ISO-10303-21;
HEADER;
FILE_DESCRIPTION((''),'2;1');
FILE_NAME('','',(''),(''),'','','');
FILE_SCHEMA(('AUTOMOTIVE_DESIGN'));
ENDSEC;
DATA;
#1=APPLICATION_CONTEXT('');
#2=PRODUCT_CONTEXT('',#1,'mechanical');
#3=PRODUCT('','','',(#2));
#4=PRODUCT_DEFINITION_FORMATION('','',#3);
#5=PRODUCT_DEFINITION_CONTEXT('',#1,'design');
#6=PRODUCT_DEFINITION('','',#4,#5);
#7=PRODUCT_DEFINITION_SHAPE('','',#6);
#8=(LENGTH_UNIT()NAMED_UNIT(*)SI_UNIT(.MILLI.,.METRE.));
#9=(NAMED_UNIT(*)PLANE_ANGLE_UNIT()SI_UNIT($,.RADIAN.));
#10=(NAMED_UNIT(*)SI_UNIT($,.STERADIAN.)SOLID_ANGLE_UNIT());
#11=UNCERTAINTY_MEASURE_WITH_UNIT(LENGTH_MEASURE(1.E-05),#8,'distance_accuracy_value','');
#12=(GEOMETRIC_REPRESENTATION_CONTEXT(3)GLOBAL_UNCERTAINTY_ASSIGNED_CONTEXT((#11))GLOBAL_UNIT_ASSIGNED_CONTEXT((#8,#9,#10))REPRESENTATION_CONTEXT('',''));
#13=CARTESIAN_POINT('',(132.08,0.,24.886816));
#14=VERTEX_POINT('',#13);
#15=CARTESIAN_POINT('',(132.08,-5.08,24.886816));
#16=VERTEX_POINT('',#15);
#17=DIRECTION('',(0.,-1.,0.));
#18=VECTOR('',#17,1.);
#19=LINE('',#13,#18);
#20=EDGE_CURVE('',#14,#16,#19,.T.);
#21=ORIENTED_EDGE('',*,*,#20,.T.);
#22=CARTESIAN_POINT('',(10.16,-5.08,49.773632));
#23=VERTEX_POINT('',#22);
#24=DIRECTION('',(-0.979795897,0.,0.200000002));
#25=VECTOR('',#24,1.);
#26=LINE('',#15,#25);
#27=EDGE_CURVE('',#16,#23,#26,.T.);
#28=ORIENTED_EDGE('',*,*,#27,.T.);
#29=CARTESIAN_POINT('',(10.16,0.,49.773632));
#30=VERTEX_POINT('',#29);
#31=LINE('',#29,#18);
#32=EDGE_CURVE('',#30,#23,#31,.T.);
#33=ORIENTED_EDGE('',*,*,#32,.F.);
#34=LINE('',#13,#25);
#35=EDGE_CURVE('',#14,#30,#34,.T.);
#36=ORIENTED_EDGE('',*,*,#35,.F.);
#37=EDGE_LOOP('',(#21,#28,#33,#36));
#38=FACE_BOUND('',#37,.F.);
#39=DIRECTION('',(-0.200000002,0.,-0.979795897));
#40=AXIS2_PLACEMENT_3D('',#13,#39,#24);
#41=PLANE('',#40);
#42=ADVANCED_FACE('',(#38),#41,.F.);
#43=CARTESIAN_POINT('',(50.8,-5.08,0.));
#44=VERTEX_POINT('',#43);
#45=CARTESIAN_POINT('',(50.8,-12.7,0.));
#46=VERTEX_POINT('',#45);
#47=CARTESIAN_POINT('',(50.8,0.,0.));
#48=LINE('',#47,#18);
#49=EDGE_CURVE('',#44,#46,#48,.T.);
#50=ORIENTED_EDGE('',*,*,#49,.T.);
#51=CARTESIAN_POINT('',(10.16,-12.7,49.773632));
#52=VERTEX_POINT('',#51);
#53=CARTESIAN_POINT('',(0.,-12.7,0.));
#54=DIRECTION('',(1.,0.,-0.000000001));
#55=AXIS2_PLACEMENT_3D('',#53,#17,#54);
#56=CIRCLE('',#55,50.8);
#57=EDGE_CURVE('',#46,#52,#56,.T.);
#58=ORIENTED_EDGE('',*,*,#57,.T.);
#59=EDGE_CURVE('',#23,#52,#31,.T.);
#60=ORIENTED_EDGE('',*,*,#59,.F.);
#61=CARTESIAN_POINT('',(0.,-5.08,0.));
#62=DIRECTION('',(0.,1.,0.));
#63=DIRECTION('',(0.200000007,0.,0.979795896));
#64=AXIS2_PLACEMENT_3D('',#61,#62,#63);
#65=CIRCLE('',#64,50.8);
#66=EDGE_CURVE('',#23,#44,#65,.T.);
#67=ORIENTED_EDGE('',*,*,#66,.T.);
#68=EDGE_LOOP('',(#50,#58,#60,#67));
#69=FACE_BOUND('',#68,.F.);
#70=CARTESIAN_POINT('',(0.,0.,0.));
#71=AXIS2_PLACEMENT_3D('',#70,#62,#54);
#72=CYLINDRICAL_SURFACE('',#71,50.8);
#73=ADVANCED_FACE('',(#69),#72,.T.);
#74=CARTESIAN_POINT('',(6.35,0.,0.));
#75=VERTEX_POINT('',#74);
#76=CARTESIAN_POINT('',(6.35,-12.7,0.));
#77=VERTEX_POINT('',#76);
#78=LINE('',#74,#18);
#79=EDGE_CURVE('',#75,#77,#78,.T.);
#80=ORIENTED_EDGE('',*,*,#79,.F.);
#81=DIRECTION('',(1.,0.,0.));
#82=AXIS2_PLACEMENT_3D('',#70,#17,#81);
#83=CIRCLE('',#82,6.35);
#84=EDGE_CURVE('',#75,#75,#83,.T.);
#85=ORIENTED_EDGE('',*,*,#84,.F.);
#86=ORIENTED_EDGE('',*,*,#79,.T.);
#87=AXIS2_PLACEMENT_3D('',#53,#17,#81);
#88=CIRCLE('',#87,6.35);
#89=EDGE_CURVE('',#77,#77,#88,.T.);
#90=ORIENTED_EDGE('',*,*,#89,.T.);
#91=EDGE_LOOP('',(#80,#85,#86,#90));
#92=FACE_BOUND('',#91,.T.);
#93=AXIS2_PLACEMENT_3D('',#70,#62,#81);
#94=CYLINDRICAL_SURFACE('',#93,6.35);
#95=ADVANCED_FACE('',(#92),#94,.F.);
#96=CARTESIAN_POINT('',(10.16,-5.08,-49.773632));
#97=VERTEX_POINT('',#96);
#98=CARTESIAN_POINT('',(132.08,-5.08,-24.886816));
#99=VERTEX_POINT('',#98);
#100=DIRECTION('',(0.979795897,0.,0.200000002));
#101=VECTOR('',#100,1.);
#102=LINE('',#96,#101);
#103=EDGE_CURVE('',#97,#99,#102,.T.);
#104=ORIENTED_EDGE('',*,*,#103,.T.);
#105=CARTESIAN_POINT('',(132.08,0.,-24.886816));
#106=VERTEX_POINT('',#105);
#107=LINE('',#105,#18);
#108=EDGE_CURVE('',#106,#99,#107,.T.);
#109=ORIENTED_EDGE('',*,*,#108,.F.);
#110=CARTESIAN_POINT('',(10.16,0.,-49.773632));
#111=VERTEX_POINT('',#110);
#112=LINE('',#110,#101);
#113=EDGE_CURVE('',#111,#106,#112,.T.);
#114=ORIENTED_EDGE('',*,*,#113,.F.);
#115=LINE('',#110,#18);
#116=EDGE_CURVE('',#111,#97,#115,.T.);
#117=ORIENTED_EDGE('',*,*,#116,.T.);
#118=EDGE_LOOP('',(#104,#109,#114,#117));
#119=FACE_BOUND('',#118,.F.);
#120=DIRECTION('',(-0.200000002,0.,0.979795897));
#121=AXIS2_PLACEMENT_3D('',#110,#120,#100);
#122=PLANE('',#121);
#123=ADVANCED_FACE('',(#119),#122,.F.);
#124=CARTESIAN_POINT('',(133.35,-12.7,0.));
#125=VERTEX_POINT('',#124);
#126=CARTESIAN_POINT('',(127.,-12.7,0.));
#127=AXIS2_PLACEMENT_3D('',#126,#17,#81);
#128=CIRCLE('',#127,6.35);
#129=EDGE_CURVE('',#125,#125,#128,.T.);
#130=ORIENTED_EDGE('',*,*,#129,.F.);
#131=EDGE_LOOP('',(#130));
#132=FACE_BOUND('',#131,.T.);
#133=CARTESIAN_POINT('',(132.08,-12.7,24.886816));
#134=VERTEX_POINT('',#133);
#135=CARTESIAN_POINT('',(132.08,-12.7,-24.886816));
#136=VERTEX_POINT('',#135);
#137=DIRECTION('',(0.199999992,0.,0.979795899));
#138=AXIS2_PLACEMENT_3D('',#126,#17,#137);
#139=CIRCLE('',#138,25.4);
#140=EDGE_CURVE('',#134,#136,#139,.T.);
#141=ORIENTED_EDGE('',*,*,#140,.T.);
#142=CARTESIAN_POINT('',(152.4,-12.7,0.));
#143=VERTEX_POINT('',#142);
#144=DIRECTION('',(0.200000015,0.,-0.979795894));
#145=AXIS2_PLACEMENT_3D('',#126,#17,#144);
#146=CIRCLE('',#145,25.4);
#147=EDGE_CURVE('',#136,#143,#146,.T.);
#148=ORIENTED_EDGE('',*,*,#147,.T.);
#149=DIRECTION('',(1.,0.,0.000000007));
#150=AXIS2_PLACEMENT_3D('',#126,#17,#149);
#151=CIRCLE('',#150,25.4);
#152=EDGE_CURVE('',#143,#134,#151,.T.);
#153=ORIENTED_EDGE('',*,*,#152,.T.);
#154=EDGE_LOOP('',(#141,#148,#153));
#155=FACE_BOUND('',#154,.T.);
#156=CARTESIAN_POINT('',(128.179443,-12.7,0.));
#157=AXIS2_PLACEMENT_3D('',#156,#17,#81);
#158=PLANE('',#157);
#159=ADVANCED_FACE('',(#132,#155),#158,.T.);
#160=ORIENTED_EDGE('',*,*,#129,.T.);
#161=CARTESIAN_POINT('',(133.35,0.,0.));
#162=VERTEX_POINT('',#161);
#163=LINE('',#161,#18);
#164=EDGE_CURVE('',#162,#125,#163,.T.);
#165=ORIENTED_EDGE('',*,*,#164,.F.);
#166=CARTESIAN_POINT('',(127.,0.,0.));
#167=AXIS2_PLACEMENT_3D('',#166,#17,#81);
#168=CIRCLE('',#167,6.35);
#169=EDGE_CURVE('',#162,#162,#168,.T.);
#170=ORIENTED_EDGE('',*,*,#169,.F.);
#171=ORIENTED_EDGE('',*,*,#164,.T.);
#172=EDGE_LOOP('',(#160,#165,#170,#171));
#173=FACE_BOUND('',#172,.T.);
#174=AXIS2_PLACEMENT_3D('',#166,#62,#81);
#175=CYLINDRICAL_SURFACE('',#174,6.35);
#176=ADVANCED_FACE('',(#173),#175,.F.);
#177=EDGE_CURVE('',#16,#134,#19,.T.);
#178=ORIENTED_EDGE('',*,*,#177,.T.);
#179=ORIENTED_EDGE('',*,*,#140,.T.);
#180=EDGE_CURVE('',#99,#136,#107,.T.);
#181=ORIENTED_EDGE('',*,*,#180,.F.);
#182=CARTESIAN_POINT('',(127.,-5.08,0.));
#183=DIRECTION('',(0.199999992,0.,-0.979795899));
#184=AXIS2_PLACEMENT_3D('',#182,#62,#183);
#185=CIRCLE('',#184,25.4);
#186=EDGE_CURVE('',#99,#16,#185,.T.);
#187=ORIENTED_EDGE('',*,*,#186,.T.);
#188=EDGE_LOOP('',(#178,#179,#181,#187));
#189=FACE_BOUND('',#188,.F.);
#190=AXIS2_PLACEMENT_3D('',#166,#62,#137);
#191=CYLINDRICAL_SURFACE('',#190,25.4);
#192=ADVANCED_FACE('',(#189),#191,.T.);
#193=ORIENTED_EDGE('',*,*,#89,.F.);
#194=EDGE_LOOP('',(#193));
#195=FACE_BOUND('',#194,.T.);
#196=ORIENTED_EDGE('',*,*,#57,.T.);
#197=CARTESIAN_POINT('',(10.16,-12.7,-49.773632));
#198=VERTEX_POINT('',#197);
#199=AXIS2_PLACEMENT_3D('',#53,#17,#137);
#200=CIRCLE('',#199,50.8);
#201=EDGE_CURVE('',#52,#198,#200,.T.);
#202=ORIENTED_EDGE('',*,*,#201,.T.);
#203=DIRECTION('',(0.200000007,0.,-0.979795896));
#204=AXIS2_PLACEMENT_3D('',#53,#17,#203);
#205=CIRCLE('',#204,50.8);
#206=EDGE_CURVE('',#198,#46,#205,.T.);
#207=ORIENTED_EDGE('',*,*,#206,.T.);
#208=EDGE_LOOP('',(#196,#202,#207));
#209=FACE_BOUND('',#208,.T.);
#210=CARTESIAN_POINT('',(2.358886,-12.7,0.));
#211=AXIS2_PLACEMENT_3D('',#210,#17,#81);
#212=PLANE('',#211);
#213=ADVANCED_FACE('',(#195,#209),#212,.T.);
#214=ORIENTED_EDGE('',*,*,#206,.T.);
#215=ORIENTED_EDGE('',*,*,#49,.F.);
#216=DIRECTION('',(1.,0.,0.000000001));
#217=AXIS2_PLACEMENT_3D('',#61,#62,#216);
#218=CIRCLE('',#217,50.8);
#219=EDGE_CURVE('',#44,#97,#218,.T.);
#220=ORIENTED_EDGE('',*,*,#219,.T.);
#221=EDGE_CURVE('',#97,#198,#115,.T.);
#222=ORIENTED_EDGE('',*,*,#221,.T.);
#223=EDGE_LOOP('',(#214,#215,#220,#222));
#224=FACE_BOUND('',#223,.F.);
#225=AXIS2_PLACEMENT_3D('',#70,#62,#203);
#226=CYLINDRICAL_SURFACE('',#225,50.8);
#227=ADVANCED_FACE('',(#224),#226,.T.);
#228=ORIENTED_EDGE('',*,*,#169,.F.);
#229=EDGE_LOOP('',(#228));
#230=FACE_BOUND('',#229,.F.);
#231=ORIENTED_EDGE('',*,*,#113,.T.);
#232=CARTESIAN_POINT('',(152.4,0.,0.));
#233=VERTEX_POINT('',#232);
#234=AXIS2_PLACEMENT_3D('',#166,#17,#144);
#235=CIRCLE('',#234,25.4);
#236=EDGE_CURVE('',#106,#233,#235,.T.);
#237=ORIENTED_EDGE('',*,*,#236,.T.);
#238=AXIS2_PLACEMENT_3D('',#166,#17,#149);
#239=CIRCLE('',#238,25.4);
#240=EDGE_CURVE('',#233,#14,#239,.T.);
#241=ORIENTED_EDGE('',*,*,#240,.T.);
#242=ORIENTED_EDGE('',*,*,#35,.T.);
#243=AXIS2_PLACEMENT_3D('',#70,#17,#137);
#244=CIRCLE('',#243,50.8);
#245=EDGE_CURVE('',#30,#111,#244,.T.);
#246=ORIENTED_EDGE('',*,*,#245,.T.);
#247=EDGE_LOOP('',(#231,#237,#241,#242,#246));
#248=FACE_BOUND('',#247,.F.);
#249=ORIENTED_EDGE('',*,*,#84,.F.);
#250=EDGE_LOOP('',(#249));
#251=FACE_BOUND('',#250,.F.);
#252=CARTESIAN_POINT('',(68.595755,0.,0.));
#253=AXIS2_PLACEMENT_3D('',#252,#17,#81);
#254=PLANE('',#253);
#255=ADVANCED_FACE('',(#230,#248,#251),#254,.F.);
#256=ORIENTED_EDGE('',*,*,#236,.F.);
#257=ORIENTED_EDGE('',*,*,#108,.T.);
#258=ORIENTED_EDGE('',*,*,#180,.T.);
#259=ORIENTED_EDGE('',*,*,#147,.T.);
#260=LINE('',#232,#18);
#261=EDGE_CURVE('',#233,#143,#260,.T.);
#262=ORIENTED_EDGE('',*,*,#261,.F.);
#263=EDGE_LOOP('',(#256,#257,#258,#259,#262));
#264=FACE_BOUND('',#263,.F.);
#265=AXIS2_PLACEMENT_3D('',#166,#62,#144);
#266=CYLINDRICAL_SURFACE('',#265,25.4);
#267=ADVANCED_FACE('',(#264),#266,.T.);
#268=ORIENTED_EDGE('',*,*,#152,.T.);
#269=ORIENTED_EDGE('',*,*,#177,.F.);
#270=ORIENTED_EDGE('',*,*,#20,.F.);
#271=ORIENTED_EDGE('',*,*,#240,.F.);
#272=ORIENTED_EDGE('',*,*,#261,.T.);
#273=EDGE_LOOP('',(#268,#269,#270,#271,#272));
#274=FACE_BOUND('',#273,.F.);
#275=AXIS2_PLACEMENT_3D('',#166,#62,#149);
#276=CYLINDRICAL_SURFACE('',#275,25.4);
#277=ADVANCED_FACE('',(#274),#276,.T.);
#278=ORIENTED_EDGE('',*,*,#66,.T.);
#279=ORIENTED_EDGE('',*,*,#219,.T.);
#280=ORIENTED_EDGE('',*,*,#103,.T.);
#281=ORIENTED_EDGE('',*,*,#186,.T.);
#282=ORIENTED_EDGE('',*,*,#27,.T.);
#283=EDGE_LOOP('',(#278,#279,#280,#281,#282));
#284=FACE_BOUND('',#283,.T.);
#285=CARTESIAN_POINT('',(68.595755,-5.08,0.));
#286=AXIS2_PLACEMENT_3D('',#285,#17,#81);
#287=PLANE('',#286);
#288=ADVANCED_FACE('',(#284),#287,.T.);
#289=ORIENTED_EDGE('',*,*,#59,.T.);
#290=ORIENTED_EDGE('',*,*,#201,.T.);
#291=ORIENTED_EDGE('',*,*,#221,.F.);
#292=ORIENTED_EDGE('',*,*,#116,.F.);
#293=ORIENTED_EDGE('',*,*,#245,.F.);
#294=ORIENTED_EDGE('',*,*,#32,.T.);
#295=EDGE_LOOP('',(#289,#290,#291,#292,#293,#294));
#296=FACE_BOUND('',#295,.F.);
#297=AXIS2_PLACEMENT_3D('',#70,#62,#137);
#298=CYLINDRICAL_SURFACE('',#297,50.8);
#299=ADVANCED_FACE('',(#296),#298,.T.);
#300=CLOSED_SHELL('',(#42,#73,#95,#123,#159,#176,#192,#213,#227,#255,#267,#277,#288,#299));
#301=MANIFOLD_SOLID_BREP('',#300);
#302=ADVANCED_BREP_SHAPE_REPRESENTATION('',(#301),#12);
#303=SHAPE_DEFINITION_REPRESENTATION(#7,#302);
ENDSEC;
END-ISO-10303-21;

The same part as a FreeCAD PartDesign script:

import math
import FreeCAD as App
import Part
import Sketcher

V = App.Vector
Q = App.Units.Quantity

doc = App.newDocument("Part")
params = doc.addObject("Spreadsheet::Sheet", "Params")
for row, (alias, value) in enumerate([
    ("sketch1_radius", "1 in"),
    ("sketch1_radius2", "2 in"),
    ("sketch1_diameter", "0.5 in"),
    ("pad1_length", "0.5 in"),
    ("sketch2_radius", "2 in"),
    ("sketch2_radius2", "1 in"),
    ("pad2_length", "0.2 in"),
    ("sketch3_diameter", "0.5 in"),
    ("pocket1_length", "4 in"),
], start=1):
    params.set(f"A{row}", alias)
    params.set(f"B{row}", "=" + value)
    params.setAlias(f"B{row}", alias)

body = doc.addObject("PartDesign::Body", "Body")
body.AllowCompound = True

# Sketch on XZ plane
sketch1 = doc.addObject("Sketcher::SketchObject", "Sketch")
body.addObject(sketch1)
sketch1.AttachmentSupport = (doc.XZ_Plane, [""])
sketch1.MapMode = "FlatFace"
sketch1.addGeometry(Part.ArcOfCircle(Part.Circle(V(127, 0, 0), V(0, 0, 1), 25.4), math.radians(0), math.radians(78.46304)), False)
sketch1.addGeometry(Part.ArcOfCircle(Part.Circle(V(127, 0, 0), V(0, 0, 1), 25.4), math.radians(78.463041), math.radians(281.536959)), False)
sketch1.addGeometry(Part.ArcOfCircle(Part.Circle(V(127, 0, 0), V(0, 0, 1), 25.4), math.radians(-78.46304), math.radians(0)), False)
sketch1.addGeometry(Part.Circle(V(127, 0, 0), V(0, 0, 1), 6.35), False)
sketch1.addGeometry(Part.ArcOfCircle(Part.Circle(V(0, 0, 0), V(0, 0, 1), 50.8), math.radians(-78.463041), math.radians(0)), False)
sketch1.addGeometry(Part.ArcOfCircle(Part.Circle(V(0, 0, 0), V(0, 0, 1), 50.8), math.radians(0), math.radians(78.463041)), False)
sketch1.addGeometry(Part.ArcOfCircle(Part.Circle(V(0, 0, 0), V(0, 0, 1), 50.8), math.radians(78.463041), math.radians(281.536959)), False)
sketch1.addGeometry(Part.Circle(V(0, 0, 0), V(0, 0, 1), 6.35), False)
sketch1.addConstraint(Sketcher.Constraint("Tangent", 0, 2, 1, 1))
sketch1.addConstraint(Sketcher.Constraint("Tangent", 1, 2, 2, 1))
sketch1.addConstraint(Sketcher.Constraint("Tangent", 2, 2, 0, 1))
sketch1.addConstraint(Sketcher.Constraint("Tangent", 4, 2, 5, 1))
sketch1.addConstraint(Sketcher.Constraint("Tangent", 5, 2, 6, 1))
sketch1.addConstraint(Sketcher.Constraint("Tangent", 6, 2, 4, 1))
sketch1.addConstraint(Sketcher.Constraint("Coincident", 4, 3, -1, 1))
sketch1.addConstraint(Sketcher.Constraint("Coincident", 7, 3, -1, 1))
sketch1.addConstraint(Sketcher.Constraint("Coincident", 3, 3, 0, 3))
sketch1.addConstraint(Sketcher.Constraint("Equal", 3, 7))
sketch1.addConstraint(Sketcher.Constraint("Symmetric", 0, 2, 1, 2, -1))
sketch1.addConstraint(Sketcher.Constraint("PointOnObject", 2, 2, -1))
sketch1.addConstraint(Sketcher.Constraint("PointOnObject", 4, 2, -1))
sketch1.addConstraint(Sketcher.Constraint("Vertical", 5, 2, 6, 2))
sketch1.addConstraint(Sketcher.Constraint("Radius", 0, Q("1 in")))
sketch1.addConstraint(Sketcher.Constraint("Radius", 4, Q("2 in")))
sketch1.addConstraint(Sketcher.Constraint("Diameter", 3, Q("0.5 in")))
sketch1.addConstraint(Sketcher.Constraint("DistanceX", -1, 1, 0, 3, Q("5 in")))
sketch1.addConstraint(Sketcher.Constraint("DistanceX", -1, 1, 0, 2, Q("5.2 in")))
sketch1.addConstraint(Sketcher.Constraint("DistanceX", -1, 1, 5, 2, Q("0.4 in")))
sketch1.setExpression("Constraints[14]", "Params.sketch1_radius")
sketch1.setExpression("Constraints[15]", "Params.sketch1_radius2")
sketch1.setExpression("Constraints[16]", "Params.sketch1_diameter")
pad1 = doc.addObject("PartDesign::Pad", "Pad")
body.addObject(pad1)
pad1.Profile = sketch1
pad1.setExpression("Length", "Params.pad1_length")

# Sketch on XZ plane
sketch2 = doc.addObject("Sketcher::SketchObject", "Sketch001")
body.addObject(sketch2)
sketch2.AttachmentSupport = (doc.XZ_Plane, [""])
sketch2.MapMode = "FlatFace"
sketch2.addGeometry(Part.ArcOfCircle(Part.Circle(V(0, 0, 0), V(0, 0, 1), 50.8), math.radians(0), math.radians(78.463041)), False)
sketch2.addGeometry(Part.ArcOfCircle(Part.Circle(V(0, 0, 0), V(0, 0, 1), 50.8), math.radians(-78.463041), math.radians(0)), False)
sketch2.addGeometry(Part.LineSegment(V(10.16, -49.773632, 0), V(132.08, -24.886816, 0)), False)
sketch2.addGeometry(Part.ArcOfCircle(Part.Circle(V(127, 0, 0), V(0, 0, 1), 25.4), math.radians(78.463041), math.radians(281.536959)), False)
sketch2.addGeometry(Part.LineSegment(V(132.08, 24.886816, 0), V(10.16, 49.773632, 0)), False)
sketch2.addConstraint(Sketcher.Constraint("Tangent", 0, 1, 1, 2))
sketch2.addConstraint(Sketcher.Constraint("Tangent", 1, 1, 2, 1))
sketch2.addConstraint(Sketcher.Constraint("Tangent", 2, 2, 3, 2))
sketch2.addConstraint(Sketcher.Constraint("Tangent", 3, 1, 4, 1))
sketch2.addConstraint(Sketcher.Constraint("Tangent", 4, 2, 0, 2))
sketch2.addConstraint(Sketcher.Constraint("Coincident", 0, 3, -1, 1))
sketch2.addConstraint(Sketcher.Constraint("Equal", 0, 1))
sketch2.addConstraint(Sketcher.Constraint("PointOnObject", 3, 3, -1))
sketch2.addConstraint(Sketcher.Constraint("PointOnObject", 0, 1, -1))
sketch2.addConstraint(Sketcher.Constraint("Radius", 0, Q("2 in")))
sketch2.addConstraint(Sketcher.Constraint("Radius", 3, Q("1 in")))
sketch2.addConstraint(Sketcher.Constraint("DistanceX", -1, 1, 3, 3, Q("5 in")))
sketch2.setExpression("Constraints[9]", "Params.sketch2_radius")
sketch2.setExpression("Constraints[10]", "Params.sketch2_radius2")
pad2 = doc.addObject("PartDesign::Pad", "Pad001")
body.addObject(pad2)
pad2.Profile = sketch2
pad2.setExpression("Length", "Params.pad2_length")

# Sketch on XZ plane
sketch3 = doc.addObject("Sketcher::SketchObject", "Sketch002")
body.addObject(sketch3)
sketch3.AttachmentSupport = (doc.XZ_Plane, [""])
sketch3.MapMode = "FlatFace"
sketch3.addGeometry(Part.Circle(V(0, 0, 0), V(0, 0, 1), 6.35), False)
sketch3.addConstraint(Sketcher.Constraint("Coincident", 0, 3, -1, 1))
sketch3.addConstraint(Sketcher.Constraint("Diameter", 0, Q("0.5 in")))
sketch3.setExpression("Constraints[1]", "Params.sketch3_diameter")
pocket1 = doc.addObject("PartDesign::Pocket", "Pocket")
body.addObject(pocket1)
pocket1.Profile = sketch3
pocket1.setExpression("Length", "Params.pocket1_length")
pocket1.Reversed = True

doc.recompute()
